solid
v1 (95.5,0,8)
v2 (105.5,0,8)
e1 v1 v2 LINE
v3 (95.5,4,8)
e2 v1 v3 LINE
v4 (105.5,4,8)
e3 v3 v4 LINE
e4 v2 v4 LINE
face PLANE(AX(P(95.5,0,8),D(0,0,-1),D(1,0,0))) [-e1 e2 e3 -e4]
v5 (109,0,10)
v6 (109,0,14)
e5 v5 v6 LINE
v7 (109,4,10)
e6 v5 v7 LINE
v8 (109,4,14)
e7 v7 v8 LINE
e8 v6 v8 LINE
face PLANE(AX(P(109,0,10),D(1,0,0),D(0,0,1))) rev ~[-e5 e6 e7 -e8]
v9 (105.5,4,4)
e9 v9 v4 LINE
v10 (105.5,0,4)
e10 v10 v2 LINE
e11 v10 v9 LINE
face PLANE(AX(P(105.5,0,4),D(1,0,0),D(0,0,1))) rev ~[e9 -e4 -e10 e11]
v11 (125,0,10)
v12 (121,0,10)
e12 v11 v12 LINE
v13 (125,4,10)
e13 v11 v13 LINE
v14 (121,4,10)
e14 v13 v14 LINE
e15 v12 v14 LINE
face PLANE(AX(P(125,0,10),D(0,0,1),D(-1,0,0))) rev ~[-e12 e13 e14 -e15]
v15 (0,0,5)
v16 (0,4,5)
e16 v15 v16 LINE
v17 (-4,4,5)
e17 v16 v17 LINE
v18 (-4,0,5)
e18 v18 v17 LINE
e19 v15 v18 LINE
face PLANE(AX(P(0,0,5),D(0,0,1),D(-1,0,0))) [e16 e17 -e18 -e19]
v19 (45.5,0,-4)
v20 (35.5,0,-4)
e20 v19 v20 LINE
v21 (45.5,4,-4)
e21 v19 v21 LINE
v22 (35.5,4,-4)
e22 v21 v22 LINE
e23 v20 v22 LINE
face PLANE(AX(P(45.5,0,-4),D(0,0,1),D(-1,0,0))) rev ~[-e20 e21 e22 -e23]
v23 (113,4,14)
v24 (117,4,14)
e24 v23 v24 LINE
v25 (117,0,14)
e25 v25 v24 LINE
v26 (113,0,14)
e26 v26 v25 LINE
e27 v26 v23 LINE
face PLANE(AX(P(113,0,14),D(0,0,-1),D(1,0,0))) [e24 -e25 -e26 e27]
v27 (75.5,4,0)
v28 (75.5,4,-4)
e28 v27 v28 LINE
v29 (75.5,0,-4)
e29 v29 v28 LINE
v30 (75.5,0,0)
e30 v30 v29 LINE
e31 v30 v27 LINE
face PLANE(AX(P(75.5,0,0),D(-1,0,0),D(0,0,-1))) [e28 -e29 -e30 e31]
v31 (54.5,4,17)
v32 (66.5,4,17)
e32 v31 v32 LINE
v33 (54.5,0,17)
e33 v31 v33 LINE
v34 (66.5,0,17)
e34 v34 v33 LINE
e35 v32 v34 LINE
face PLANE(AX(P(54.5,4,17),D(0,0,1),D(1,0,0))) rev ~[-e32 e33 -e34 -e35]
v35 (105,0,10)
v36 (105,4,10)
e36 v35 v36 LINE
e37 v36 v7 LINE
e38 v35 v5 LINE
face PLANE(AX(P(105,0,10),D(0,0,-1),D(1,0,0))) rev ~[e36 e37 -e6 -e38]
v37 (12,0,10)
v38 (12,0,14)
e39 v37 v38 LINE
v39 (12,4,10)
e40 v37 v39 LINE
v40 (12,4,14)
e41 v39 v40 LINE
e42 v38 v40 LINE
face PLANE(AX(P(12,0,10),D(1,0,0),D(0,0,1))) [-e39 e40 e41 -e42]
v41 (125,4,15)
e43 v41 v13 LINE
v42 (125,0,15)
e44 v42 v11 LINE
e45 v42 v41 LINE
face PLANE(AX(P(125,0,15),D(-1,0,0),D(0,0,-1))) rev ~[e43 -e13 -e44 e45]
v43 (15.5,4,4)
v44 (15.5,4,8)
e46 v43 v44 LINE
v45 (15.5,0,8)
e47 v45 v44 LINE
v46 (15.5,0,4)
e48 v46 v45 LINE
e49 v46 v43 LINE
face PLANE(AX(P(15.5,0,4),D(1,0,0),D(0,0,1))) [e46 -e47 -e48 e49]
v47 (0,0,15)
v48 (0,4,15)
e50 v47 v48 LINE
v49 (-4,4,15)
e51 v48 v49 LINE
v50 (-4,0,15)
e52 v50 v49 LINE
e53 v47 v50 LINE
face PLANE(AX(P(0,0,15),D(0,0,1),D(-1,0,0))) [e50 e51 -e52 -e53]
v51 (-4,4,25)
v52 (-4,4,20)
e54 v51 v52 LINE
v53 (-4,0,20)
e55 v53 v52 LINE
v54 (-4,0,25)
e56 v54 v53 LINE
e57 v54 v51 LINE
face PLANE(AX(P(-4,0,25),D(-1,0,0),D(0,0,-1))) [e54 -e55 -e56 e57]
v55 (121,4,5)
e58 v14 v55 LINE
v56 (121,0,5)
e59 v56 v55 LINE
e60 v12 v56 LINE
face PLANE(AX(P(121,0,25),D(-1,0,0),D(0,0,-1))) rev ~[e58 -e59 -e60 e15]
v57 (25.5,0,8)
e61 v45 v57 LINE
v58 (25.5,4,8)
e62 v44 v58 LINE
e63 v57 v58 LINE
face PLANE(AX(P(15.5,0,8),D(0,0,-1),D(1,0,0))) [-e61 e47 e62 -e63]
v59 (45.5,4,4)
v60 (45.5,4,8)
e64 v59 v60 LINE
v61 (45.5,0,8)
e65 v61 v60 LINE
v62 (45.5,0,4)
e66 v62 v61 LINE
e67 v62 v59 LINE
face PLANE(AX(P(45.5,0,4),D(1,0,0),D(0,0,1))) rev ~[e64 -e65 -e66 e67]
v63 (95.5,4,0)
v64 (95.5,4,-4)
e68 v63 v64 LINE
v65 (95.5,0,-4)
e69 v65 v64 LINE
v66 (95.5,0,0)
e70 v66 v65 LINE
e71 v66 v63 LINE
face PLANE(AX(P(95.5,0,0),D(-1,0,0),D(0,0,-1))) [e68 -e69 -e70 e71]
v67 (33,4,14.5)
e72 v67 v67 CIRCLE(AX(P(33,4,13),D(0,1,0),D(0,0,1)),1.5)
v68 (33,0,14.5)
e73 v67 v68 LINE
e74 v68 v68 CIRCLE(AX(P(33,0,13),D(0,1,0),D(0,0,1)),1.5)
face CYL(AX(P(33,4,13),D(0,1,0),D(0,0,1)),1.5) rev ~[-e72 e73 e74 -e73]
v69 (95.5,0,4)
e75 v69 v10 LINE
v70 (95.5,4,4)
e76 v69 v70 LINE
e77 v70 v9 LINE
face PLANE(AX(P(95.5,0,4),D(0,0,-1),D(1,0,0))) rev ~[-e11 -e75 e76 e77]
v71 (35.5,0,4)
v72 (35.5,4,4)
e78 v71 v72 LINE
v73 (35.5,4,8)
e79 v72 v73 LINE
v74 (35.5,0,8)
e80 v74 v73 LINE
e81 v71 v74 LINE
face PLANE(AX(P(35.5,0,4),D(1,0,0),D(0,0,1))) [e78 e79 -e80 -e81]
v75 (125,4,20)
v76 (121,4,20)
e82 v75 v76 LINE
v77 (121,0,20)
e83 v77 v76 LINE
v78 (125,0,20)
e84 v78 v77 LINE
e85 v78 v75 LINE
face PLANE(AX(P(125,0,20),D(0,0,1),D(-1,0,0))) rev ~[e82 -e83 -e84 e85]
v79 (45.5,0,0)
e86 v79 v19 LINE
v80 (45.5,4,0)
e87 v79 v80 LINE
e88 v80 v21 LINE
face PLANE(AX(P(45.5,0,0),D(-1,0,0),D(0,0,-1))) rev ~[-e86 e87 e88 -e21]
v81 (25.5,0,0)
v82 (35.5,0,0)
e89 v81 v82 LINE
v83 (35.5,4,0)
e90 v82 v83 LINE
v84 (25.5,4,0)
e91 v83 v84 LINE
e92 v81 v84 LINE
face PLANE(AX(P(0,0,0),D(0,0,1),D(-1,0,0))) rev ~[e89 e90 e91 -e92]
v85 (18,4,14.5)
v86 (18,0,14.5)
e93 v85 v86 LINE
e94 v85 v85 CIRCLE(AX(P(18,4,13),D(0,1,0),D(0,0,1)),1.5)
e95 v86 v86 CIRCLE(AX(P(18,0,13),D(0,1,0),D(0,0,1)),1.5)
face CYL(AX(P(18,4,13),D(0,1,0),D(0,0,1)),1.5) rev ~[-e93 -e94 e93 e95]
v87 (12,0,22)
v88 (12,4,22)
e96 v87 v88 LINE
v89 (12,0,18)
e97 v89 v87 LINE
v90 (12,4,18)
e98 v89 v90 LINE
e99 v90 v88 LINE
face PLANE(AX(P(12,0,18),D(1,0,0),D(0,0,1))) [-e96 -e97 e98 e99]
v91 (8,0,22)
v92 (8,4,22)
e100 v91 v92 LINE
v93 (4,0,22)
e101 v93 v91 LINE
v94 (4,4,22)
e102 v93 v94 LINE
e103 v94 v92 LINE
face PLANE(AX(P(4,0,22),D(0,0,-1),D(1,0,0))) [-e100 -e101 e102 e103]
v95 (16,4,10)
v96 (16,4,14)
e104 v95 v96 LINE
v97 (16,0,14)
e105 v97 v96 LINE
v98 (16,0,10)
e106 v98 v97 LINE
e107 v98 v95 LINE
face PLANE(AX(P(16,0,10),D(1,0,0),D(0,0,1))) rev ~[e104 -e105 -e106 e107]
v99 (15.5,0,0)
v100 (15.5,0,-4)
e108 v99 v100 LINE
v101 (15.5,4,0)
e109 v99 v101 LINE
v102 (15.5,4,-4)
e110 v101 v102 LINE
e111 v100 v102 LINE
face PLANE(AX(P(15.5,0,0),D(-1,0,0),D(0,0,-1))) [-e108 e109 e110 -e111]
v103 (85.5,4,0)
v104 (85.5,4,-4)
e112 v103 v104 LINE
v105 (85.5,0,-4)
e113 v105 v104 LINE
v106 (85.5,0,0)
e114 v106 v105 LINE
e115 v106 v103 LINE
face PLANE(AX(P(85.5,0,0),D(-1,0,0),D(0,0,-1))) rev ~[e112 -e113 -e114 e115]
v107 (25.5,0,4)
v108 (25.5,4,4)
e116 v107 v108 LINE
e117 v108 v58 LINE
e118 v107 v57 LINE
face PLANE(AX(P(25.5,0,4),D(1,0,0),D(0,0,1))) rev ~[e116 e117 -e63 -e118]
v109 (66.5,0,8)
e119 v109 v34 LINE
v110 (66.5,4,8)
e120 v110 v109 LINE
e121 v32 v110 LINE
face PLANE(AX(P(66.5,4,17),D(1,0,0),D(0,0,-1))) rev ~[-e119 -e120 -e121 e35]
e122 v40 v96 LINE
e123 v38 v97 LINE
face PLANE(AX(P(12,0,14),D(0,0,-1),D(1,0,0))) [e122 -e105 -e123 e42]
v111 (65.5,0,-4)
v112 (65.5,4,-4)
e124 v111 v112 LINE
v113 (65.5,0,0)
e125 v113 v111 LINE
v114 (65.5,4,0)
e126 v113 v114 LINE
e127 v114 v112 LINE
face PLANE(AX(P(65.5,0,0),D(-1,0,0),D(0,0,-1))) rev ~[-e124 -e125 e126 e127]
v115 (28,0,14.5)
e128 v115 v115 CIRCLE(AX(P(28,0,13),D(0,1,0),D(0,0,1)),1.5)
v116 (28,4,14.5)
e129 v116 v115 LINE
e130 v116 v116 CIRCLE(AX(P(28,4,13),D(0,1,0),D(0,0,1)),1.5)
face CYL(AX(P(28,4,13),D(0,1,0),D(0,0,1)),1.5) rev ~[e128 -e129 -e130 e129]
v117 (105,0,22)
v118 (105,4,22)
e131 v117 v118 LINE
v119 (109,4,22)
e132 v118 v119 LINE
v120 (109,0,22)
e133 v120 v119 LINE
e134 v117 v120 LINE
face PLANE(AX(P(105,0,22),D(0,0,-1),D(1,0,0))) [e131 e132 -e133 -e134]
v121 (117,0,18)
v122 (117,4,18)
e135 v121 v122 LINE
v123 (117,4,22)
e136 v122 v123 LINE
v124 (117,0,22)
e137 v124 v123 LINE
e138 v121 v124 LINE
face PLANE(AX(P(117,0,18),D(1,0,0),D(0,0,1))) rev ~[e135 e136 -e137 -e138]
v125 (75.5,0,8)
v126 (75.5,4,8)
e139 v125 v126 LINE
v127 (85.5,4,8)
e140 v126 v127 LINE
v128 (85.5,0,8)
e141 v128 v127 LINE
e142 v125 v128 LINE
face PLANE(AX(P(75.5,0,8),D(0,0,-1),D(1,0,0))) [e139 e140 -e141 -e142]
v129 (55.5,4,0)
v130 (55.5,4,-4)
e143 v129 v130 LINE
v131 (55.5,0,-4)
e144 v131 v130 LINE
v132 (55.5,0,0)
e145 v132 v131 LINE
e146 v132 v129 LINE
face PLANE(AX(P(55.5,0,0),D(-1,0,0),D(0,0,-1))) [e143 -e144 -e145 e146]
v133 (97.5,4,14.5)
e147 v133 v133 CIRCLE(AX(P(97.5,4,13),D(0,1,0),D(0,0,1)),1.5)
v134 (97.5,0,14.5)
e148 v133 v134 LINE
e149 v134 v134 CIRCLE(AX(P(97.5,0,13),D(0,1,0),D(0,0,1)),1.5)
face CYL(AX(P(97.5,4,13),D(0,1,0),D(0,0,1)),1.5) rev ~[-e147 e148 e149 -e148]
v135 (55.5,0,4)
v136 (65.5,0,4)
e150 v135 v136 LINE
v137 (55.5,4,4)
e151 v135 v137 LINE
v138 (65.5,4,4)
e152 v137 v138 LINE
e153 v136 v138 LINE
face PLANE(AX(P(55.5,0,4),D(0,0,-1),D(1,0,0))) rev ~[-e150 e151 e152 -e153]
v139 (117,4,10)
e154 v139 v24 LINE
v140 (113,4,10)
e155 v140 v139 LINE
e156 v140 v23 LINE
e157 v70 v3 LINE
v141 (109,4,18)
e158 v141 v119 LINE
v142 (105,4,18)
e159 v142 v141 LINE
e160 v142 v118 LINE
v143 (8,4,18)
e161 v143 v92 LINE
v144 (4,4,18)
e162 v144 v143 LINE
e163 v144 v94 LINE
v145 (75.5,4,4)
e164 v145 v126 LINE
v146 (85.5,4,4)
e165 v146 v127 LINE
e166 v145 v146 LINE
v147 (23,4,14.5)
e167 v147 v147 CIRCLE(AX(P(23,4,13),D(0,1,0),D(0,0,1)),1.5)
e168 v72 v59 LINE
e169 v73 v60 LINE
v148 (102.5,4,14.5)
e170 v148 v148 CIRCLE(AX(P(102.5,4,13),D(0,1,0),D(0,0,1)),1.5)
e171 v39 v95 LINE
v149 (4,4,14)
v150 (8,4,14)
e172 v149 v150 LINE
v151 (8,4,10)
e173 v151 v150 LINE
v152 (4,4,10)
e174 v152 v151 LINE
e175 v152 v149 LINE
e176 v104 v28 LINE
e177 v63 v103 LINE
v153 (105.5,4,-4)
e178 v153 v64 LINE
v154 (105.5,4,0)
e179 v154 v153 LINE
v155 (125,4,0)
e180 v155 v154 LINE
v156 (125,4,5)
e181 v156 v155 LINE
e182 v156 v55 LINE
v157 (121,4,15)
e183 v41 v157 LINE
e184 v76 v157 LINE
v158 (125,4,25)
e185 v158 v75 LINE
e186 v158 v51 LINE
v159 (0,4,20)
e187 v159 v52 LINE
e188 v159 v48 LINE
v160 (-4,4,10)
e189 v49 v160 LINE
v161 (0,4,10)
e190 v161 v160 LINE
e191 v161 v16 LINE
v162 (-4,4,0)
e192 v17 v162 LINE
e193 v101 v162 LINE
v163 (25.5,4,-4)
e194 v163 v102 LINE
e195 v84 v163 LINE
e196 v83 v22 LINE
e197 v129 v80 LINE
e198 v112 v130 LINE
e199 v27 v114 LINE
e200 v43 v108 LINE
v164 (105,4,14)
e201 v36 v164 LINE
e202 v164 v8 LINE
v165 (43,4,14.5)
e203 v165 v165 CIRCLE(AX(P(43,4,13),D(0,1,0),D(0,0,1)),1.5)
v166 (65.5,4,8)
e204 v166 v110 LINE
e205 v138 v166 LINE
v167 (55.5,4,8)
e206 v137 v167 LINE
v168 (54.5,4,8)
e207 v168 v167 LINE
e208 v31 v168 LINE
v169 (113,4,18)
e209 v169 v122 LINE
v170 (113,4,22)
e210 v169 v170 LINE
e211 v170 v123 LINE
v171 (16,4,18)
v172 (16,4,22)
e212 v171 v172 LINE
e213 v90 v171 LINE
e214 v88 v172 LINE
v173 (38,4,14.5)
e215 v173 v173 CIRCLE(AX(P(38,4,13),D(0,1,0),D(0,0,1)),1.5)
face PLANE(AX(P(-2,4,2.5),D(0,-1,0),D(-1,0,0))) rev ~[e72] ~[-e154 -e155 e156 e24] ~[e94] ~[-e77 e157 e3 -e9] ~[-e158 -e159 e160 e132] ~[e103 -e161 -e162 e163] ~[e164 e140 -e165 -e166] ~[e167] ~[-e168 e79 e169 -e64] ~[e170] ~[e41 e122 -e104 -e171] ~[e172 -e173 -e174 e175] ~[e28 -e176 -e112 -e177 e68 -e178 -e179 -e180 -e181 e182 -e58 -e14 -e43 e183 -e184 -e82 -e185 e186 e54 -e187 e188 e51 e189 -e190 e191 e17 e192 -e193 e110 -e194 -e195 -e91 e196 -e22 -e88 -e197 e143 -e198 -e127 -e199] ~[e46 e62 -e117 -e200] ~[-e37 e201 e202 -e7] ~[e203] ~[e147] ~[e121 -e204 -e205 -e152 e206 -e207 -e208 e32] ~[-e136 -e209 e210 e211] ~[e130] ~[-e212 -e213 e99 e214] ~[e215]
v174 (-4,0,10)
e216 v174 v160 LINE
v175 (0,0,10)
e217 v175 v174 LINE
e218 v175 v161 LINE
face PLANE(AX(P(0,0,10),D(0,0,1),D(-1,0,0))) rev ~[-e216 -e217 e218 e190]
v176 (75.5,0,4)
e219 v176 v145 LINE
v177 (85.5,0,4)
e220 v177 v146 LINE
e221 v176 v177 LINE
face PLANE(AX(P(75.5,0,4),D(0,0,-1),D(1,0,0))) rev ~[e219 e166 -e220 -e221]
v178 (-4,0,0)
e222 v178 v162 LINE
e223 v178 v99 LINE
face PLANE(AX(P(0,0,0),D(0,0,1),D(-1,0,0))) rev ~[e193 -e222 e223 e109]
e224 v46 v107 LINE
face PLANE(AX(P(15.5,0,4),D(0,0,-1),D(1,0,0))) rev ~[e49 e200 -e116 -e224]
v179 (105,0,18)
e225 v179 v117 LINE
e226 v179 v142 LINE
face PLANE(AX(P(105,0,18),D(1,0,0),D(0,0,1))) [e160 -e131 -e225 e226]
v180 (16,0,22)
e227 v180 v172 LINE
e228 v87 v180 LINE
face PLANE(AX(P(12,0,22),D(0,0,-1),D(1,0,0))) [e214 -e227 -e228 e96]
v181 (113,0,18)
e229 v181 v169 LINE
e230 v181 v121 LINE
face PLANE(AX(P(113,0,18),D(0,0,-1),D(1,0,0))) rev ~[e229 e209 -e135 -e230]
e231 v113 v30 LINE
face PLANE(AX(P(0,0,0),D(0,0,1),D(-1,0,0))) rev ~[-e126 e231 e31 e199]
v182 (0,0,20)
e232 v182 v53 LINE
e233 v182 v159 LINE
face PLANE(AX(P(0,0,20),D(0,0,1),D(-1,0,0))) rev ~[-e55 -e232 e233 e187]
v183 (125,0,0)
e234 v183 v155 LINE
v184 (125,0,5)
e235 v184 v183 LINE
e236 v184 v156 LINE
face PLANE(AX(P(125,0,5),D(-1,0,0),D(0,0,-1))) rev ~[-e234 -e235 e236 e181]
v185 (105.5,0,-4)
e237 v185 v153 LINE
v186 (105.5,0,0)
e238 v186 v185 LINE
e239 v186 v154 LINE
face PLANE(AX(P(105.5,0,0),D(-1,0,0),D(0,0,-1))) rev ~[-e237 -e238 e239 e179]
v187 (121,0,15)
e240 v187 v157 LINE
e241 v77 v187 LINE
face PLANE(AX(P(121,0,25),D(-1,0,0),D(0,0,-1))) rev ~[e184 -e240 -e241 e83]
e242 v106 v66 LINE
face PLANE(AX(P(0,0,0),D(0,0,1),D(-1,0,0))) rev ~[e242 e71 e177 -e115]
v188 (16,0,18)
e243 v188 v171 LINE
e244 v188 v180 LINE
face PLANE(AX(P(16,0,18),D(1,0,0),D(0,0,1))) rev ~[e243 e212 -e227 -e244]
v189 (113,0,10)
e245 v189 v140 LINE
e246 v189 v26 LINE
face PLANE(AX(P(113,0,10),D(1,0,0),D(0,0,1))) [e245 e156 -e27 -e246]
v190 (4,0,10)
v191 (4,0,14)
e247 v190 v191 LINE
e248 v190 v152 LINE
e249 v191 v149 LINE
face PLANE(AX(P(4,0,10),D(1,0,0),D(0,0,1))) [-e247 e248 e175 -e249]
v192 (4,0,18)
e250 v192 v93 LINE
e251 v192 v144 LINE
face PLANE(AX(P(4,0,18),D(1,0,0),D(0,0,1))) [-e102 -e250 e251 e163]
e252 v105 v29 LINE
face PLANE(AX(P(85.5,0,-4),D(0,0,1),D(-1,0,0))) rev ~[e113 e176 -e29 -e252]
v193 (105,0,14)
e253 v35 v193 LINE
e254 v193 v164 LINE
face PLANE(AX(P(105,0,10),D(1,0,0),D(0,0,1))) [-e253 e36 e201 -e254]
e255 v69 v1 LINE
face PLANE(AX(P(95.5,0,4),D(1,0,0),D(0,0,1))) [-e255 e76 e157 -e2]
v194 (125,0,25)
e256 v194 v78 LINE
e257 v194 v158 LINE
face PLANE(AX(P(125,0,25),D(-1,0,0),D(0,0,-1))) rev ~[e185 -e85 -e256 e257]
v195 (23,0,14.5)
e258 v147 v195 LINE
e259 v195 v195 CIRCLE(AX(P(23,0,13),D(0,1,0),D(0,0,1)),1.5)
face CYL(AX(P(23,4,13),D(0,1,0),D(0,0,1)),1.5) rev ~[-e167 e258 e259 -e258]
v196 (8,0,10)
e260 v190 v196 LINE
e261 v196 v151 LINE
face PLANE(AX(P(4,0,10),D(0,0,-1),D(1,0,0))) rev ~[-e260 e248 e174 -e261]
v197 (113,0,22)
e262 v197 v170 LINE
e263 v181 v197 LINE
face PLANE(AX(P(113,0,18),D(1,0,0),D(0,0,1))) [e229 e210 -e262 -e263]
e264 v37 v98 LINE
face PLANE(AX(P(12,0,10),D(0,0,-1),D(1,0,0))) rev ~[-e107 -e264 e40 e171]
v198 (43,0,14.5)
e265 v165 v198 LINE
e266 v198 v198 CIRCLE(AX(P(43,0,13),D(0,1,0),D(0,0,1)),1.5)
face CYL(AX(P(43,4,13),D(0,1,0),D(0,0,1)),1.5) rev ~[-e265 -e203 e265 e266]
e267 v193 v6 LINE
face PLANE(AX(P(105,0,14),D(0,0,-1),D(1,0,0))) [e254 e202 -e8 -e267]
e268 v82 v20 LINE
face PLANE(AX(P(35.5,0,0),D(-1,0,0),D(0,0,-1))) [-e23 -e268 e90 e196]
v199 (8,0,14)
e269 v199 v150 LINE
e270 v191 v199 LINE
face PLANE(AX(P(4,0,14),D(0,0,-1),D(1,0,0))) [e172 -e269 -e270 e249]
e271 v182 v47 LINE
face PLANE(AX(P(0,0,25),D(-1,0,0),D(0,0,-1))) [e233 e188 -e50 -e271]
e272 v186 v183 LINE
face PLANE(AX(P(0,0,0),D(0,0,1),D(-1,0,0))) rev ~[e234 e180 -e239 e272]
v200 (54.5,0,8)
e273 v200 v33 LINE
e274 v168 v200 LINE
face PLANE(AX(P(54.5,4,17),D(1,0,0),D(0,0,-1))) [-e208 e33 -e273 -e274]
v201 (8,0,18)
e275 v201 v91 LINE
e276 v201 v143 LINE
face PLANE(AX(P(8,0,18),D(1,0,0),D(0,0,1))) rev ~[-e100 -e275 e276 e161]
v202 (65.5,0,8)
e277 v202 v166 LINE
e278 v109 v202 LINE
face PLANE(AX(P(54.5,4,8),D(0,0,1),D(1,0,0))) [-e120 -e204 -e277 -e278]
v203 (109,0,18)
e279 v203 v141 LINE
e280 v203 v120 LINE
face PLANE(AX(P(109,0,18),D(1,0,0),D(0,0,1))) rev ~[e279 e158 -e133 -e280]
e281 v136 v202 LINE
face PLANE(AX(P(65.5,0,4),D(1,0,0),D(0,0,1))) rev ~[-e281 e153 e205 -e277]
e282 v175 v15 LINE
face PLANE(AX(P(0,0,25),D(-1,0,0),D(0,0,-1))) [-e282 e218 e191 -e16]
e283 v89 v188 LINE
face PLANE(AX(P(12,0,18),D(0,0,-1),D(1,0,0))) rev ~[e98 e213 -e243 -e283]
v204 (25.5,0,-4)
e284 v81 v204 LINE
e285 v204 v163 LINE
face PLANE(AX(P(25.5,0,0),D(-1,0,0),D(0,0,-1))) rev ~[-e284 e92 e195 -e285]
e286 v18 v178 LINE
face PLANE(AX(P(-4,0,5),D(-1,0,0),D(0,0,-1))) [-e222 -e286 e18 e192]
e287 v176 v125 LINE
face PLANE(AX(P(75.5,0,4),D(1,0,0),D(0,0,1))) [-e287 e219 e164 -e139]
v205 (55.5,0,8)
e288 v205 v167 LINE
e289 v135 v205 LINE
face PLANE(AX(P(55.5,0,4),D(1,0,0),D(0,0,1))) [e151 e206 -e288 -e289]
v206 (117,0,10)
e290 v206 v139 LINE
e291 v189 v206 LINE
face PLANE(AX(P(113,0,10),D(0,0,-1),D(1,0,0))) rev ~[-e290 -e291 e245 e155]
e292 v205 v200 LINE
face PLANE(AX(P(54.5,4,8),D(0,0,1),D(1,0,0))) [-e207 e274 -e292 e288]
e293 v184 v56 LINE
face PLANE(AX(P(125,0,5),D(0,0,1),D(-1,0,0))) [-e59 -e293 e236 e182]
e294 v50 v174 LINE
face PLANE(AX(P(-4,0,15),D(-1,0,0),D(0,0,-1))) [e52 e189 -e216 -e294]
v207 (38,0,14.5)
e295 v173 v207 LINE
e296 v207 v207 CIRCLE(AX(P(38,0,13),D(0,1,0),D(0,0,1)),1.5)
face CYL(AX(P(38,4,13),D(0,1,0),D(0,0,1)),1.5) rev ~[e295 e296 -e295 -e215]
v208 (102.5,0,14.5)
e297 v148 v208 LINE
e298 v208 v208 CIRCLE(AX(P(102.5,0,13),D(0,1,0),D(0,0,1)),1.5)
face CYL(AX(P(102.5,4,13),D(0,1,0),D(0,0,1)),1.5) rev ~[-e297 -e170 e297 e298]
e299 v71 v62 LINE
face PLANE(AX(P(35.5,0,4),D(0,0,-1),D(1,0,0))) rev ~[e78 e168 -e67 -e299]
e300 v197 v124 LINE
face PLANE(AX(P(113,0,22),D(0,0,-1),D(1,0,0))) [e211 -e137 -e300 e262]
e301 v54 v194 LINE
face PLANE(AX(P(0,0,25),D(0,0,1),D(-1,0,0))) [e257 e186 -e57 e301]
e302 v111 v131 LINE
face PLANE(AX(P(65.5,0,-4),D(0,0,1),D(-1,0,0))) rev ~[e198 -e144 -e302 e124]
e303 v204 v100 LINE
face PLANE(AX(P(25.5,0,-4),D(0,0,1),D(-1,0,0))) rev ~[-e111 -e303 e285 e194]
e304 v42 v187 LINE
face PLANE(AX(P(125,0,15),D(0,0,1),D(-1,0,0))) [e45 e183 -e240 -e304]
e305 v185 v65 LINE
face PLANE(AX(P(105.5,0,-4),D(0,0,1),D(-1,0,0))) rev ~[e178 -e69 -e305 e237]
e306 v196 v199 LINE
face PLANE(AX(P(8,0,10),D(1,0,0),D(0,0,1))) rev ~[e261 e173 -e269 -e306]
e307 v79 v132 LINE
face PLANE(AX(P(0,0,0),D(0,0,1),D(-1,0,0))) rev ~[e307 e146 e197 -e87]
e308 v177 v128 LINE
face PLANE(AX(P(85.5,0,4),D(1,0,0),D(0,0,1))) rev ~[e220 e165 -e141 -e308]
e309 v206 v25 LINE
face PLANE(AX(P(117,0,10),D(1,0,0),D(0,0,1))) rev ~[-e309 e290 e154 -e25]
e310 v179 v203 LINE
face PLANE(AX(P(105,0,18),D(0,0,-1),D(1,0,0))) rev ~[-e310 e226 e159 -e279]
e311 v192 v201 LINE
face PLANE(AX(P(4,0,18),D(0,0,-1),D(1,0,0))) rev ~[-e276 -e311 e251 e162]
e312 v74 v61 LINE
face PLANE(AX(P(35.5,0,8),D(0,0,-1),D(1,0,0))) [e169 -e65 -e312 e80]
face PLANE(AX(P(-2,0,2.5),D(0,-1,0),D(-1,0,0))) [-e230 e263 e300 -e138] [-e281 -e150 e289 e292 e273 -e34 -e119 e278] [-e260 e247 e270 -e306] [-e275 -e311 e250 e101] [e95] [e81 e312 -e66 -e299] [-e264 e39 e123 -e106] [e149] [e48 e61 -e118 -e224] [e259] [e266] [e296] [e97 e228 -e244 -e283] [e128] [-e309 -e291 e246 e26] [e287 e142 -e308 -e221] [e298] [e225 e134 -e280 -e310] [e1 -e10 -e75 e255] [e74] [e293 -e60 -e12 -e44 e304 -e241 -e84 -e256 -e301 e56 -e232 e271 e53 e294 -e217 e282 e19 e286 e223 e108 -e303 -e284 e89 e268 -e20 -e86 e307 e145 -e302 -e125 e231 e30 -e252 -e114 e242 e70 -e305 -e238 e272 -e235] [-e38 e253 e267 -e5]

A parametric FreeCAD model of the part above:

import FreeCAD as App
import Part
import Sketcher
from FreeCAD import Vector

doc = App.newDocument("Part")
body = doc.addObject("PartDesign::Body", "Body")

sketch1 = body.newObject("Sketcher::SketchObject", "Sketch")
sketch1.AttachmentSupport = (doc.getObject("XZ_Plane"), [""])
sketch1.MapMode = "FlatFace"
sketch1.addGeometry(Part.LineSegment(Vector(0, 0, 0), Vector(0, 25, 0)), False)
sketch1.addGeometry(Part.LineSegment(Vector(0, 25, 0), Vector(121, 25, 0)), False)
sketch1.addGeometry(Part.LineSegment(Vector(121, 25, 0), Vector(121, 0, 0)), False)
sketch1.addGeometry(Part.LineSegment(Vector(121, 0, 0), Vector(0, 0, 0)), False)
sketch1.addConstraint(Sketcher.Constraint("Coincident", 0, 2, 1, 1))
sketch1.addConstraint(Sketcher.Constraint("Coincident", 1, 2, 2, 1))
sketch1.addConstraint(Sketcher.Constraint("Coincident", 2, 2, 3, 1))
sketch1.addConstraint(Sketcher.Constraint("Coincident", 3, 2, 0, 1))
sketch1.addConstraint(Sketcher.Constraint("Vertical", 0))
sketch1.addConstraint(Sketcher.Constraint("Horizontal", 1))
sketch1.addConstraint(Sketcher.Constraint("Vertical", 2))
sketch1.addConstraint(Sketcher.Constraint("Horizontal", 3))
sketch1.addConstraint(Sketcher.Constraint("Coincident", 3, 2, -1, 1))
sketch1.addConstraint(Sketcher.Constraint("DistanceX", 1, 1, 1, 2, 121.0))
sketch1.addConstraint(Sketcher.Constraint("DistanceY", 0, 1, 0, 2, 25.0))
pad1 = body.newObject("PartDesign::Pad", "Pad")
pad1.Profile = sketch1
pad1.Length = 4
pad1.Reversed = True

sketch2 = body.newObject("Sketcher::SketchObject", "Sketch001")
sketch2.AttachmentSupport = (doc.getObject("XZ_Plane"), [""])
sketch2.MapMode = "FlatFace"
sketch2.addGeometry(Part.LineSegment(Vector(0, 20, 0), Vector(0, 25, 0)), False)
sketch2.addGeometry(Part.LineSegment(Vector(0, 25, 0), Vector(-4, 25, 0)), False)
sketch2.addGeometry(Part.LineSegment(Vector(-4, 25, 0), Vector(-4, 20, 0)), False)
sketch2.addGeometry(Part.LineSegment(Vector(-4, 20, 0), Vector(0, 20, 0)), False)
sketch2.addGeometry(Part.LineSegment(Vector(125, 20, 0), Vector(125, 25, 0)), False)
sketch2.addGeometry(Part.LineSegment(Vector(125, 25, 0), Vector(121, 25, 0)), False)
sketch2.addGeometry(Part.LineSegment(Vector(121, 25, 0), Vector(121, 20, 0)), False)
sketch2.addGeometry(Part.LineSegment(Vector(121, 20, 0), Vector(125, 20, 0)), False)
sketch2.addConstraint(Sketcher.Constraint("Coincident", 0, 2, 1, 1))
sketch2.addConstraint(Sketcher.Constraint("Coincident", 1, 2, 2, 1))
sketch2.addConstraint(Sketcher.Constraint("Coincident", 2, 2, 3, 1))
sketch2.addConstraint(Sketcher.Constraint("Coincident", 3, 2, 0, 1))
sketch2.addConstraint(Sketcher.Constraint("Coincident", 4, 2, 5, 1))
sketch2.addConstraint(Sketcher.Constraint("Coincident", 5, 2, 6, 1))
sketch2.addConstraint(Sketcher.Constraint("Coincident", 6, 2, 7, 1))
sketch2.addConstraint(Sketcher.Constraint("Coincident", 7, 2, 4, 1))
sketch2.addConstraint(Sketcher.Constraint("Vertical", 0))
sketch2.addConstraint(Sketcher.Constraint("Horizontal", 1))
sketch2.addConstraint(Sketcher.Constraint("Vertical", 2))
sketch2.addConstraint(Sketcher.Constraint("Horizontal", 3))
sketch2.addConstraint(Sketcher.Constraint("Vertical", 4))
sketch2.addConstraint(Sketcher.Constraint("Horizontal", 5))
sketch2.addConstraint(Sketcher.Constraint("Vertical", 6))
sketch2.addConstraint(Sketcher.Constraint("Horizontal", 7))
sketch2.addConstraint(Sketcher.Constraint("PointOnObject", 0, 2, -2))
sketch2.addConstraint(Sketcher.Constraint("Horizontal", 1, 2, 4, 2))
sketch2.addConstraint(Sketcher.Constraint("Horizontal", 3, 2, 6, 2))
sketch2.addConstraint(Sketcher.Constraint("Equal", 3, 5))
sketch2.addConstraint(Sketcher.Constraint("DistanceX", 1, 2, 1, 1, 4.0))
sketch2.addConstraint(Sketcher.Constraint("DistanceY", 0, 1, 0, 2, 5.0))
sketch2.addConstraint(Sketcher.Constraint("DistanceY", -1, 1, 0, 2, 25.0))
sketch2.addConstraint(Sketcher.Constraint("DistanceX", -1, 1, 4, 2, 125.0))
pad2 = body.newObject("PartDesign::Pad", "Pad001")
pad2.Profile = sketch2
pad2.Length = 4
pad2.Reversed = True
doc.recompute()

linearpattern = body.newObject("PartDesign::LinearPattern", "LinearPattern")
linearpattern.Originals = [pad2]
linearpattern.Direction = (doc.getObject("Z_Axis"), [""])
linearpattern.Mode = "offset"
linearpattern.Offset = 10
linearpattern.Occurrences = 3
linearpattern.Reversed = True
body.Tip = linearpattern

sketch3 = body.newObject("Sketcher::SketchObject", "Sketch002")
sketch3.AttachmentSupport = (doc.getObject("XZ_Plane"), [""])
sketch3.MapMode = "FlatFace"
sketch3.addGeometry(Part.LineSegment(Vector(65.5, -4, 0), Vector(65.5, 0, 0)), False)
sketch3.addGeometry(Part.LineSegment(Vector(65.5, 0, 0), Vector(55.5, 0, 0)), False)
sketch3.addGeometry(Part.LineSegment(Vector(55.5, 0, 0), Vector(55.5, -4, 0)), False)
sketch3.addGeometry(Part.LineSegment(Vector(55.5, -4, 0), Vector(65.5, -4, 0)), False)
sketch3.addConstraint(Sketcher.Constraint("Coincident", 0, 2, 1, 1))
sketch3.addConstraint(Sketcher.Constraint("Coincident", 1, 2, 2, 1))
sketch3.addConstraint(Sketcher.Constraint("Coincident", 2, 2, 3, 1))
sketch3.addConstraint(Sketcher.Constraint("Coincident", 3, 2, 0, 1))
sketch3.addConstraint(Sketcher.Constraint("Vertical", 0))
sketch3.addConstraint(Sketcher.Constraint("Horizontal", 1))
sketch3.addConstraint(Sketcher.Constraint("Vertical", 2))
sketch3.addConstraint(Sketcher.Constraint("Horizontal", 3))
sketch3.addConstraint(Sketcher.Constraint("PointOnObject", 0, 2, -1))
sketch3.addConstraint(Sketcher.Constraint("DistanceX", 1, 2, 1, 1, 10.0))
sketch3.addConstraint(Sketcher.Constraint("DistanceY", 0, 1, 0, 2, 4.0))
sketch3.addConstraint(Sketcher.Constraint("DistanceX", -1, 1, 0, 2, 65.5))
pad3 = body.newObject("PartDesign::Pad", "Pad002")
pad3.Profile = sketch3
pad3.Length = 4
pad3.Reversed = True
doc.recompute()

linearpattern2 = body.newObject("PartDesign::LinearPattern", "LinearPattern001")
linearpattern2.Originals = [pad3]
linearpattern2.Direction = (doc.getObject("X_Axis"), [""])
linearpattern2.Mode = "offset"
linearpattern2.Offset = 20
linearpattern2.Occurrences = 3
body.Tip = linearpattern2
doc.recompute()

linearpattern3 = body.newObject("PartDesign::LinearPattern", "LinearPattern002")
linearpattern3.Originals = [pad3]
linearpattern3.Direction = (doc.getObject("X_Axis"), [""])
linearpattern3.Mode = "offset"
linearpattern3.Offset = 20
linearpattern3.Occurrences = 3
linearpattern3.Reversed = True
body.Tip = linearpattern3

sketch4 = body.newObject("Sketcher::SketchObject", "Sketch003")
sketch4.AttachmentSupport = (doc.getObject("XZ_Plane"), [""])
sketch4.MapMode = "FlatFace"
sketch4.addGeometry(Part.LineSegment(Vector(15.5, 8, 0), Vector(15.5, 4, 0)), False)
sketch4.addGeometry(Part.LineSegment(Vector(15.5, 4, 0), Vector(25.5, 4, 0)), False)
sketch4.addGeometry(Part.LineSegment(Vector(25.5, 4, 0), Vector(25.5, 8, 0)), False)
sketch4.addGeometry(Part.LineSegment(Vector(25.5, 8, 0), Vector(15.5, 8, 0)), False)
sketch4.addGeometry(Part.LineSegment(Vector(35.5, 8, 0), Vector(35.5, 4, 0)), False)
sketch4.addGeometry(Part.LineSegment(Vector(35.5, 4, 0), Vector(45.5, 4, 0)), False)
sketch4.addGeometry(Part.LineSegment(Vector(45.5, 4, 0), Vector(45.5, 8, 0)), False)
sketch4.addGeometry(Part.LineSegment(Vector(45.5, 8, 0), Vector(35.5, 8, 0)), False)
sketch4.addGeometry(Part.LineSegment(Vector(55.5, 8, 0), Vector(55.5, 4, 0)), False)
sketch4.addGeometry(Part.LineSegment(Vector(55.5, 4, 0), Vector(65.5, 4, 0)), False)
sketch4.addGeometry(Part.LineSegment(Vector(65.5, 4, 0), Vector(65.5, 8, 0)), False)
sketch4.addGeometry(Part.LineSegment(Vector(65.5, 8, 0), Vector(55.5, 8, 0)), False)
sketch4.addGeometry(Part.LineSegment(Vector(75.5, 8, 0), Vector(75.5, 4, 0)), False)
sketch4.addGeometry(Part.LineSegment(Vector(75.5, 4, 0), Vector(85.5, 4, 0)), False)
sketch4.addGeometry(Part.LineSegment(Vector(85.5, 4, 0), Vector(85.5, 8, 0)), False)
sketch4.addGeometry(Part.LineSegment(Vector(85.5, 8, 0), Vector(75.5, 8, 0)), False)
sketch4.addGeometry(Part.LineSegment(Vector(95.5, 8, 0), Vector(95.5, 4, 0)), False)
sketch4.addGeometry(Part.LineSegment(Vector(95.5, 4, 0), Vector(105.5, 4, 0)), False)
sketch4.addGeometry(Part.LineSegment(Vector(105.5, 4, 0), Vector(105.5, 8, 0)), False)
sketch4.addGeometry(Part.LineSegment(Vector(105.5, 8, 0), Vector(95.5, 8, 0)), False)
sketch4.addConstraint(Sketcher.Constraint("Coincident", 0, 2, 1, 1))
sketch4.addConstraint(Sketcher.Constraint("Coincident", 1, 2, 2, 1))
sketch4.addConstraint(Sketcher.Constraint("Coincident", 2, 2, 3, 1))
sketch4.addConstraint(Sketcher.Constraint("Coincident", 3, 2, 0, 1))
sketch4.addConstraint(Sketcher.Constraint("Coincident", 4, 2, 5, 1))
sketch4.addConstraint(Sketcher.Constraint("Coincident", 5, 2, 6, 1))
sketch4.addConstraint(Sketcher.Constraint("Coincident", 6, 2, 7, 1))
sketch4.addConstraint(Sketcher.Constraint("Coincident", 7, 2, 4, 1))
sketch4.addConstraint(Sketcher.Constraint("Coincident", 8, 2, 9, 1))
sketch4.addConstraint(Sketcher.Constraint("Coincident", 9, 2, 10, 1))
sketch4.addConstraint(Sketcher.Constraint("Coincident", 10, 2, 11, 1))
sketch4.addConstraint(Sketcher.Constraint("Coincident", 11, 2, 8, 1))
sketch4.addConstraint(Sketcher.Constraint("Coincident", 12, 2, 13, 1))
sketch4.addConstraint(Sketcher.Constraint("Coincident", 13, 2, 14, 1))
sketch4.addConstraint(Sketcher.Constraint("Coincident", 14, 2, 15, 1))
sketch4.addConstraint(Sketcher.Constraint("Coincident", 15, 2, 12, 1))
sketch4.addConstraint(Sketcher.Constraint("Coincident", 16, 2, 17, 1))
sketch4.addConstraint(Sketcher.Constraint("Coincident", 17, 2, 18, 1))
sketch4.addConstraint(Sketcher.Constraint("Coincident", 18, 2, 19, 1))
sketch4.addConstraint(Sketcher.Constraint("Coincident", 19, 2, 16, 1))
sketch4.addConstraint(Sketcher.Constraint("Vertical", 0))
sketch4.addConstraint(Sketcher.Constraint("Horizontal", 1))
sketch4.addConstraint(Sketcher.Constraint("Vertical", 2))
sketch4.addConstraint(Sketcher.Constraint("Horizontal", 3))
sketch4.addConstraint(Sketcher.Constraint("Vertical", 4))
sketch4.addConstraint(Sketcher.Constraint("Horizontal", 5))
sketch4.addConstraint(Sketcher.Constraint("Vertical", 6))
sketch4.addConstraint(Sketcher.Constraint("Horizontal", 7))
sketch4.addConstraint(Sketcher.Constraint("Vertical", 8))
sketch4.addConstraint(Sketcher.Constraint("Horizontal", 9))
sketch4.addConstraint(Sketcher.Constraint("Vertical", 10))
sketch4.addConstraint(Sketcher.Constraint("Horizontal", 11))
sketch4.addConstraint(Sketcher.Constraint("Vertical", 12))
sketch4.addConstraint(Sketcher.Constraint("Horizontal", 13))
sketch4.addConstraint(Sketcher.Constraint("Vertical", 14))
sketch4.addConstraint(Sketcher.Constraint("Horizontal", 15))
sketch4.addConstraint(Sketcher.Constraint("Vertical", 16))
sketch4.addConstraint(Sketcher.Constraint("Horizontal", 17))
sketch4.addConstraint(Sketcher.Constraint("Vertical", 18))
sketch4.addConstraint(Sketcher.Constraint("Horizontal", 19))
sketch4.addConstraint(Sketcher.Constraint("Horizontal", 1, 2, 4, 2))
sketch4.addConstraint(Sketcher.Constraint("Horizontal", 3, 2, 6, 2))
sketch4.addConstraint(Sketcher.Constraint("Horizontal", 5, 2, 8, 2))
sketch4.addConstraint(Sketcher.Constraint("Horizontal", 7, 2, 10, 2))
sketch4.addConstraint(Sketcher.Constraint("Horizontal", 9, 2, 12, 2))
sketch4.addConstraint(Sketcher.Constraint("Horizontal", 11, 2, 14, 2))
sketch4.addConstraint(Sketcher.Constraint("Horizontal", 13, 2, 16, 2))
sketch4.addConstraint(Sketcher.Constraint("Horizontal", 15, 2, 18, 2))
sketch4.addConstraint(Sketcher.Constraint("Equal", 3, 5))
sketch4.addConstraint(Sketcher.Constraint("Equal", 7, 9))
sketch4.addConstraint(Sketcher.Constraint("Equal", 11, 13))
sketch4.addConstraint(Sketcher.Constraint("Equal", 15, 17))
sketch4.addConstraint(Sketcher.Constraint("DistanceX", 1, 1, 1, 2, 10.0))
sketch4.addConstraint(Sketcher.Constraint("DistanceY", 0, 2, 0, 1, 4.0))
sketch4.addConstraint(Sketcher.Constraint("DistanceY", -1, 1, 0, 2, 4.0))
sketch4.addConstraint(Sketcher.Constraint("DistanceX", 1, 2, 4, 2, 10.0))
sketch4.addConstraint(Sketcher.Constraint("DistanceX", 5, 2, 8, 2, 10.0))
sketch4.addConstraint(Sketcher.Constraint("DistanceX", 9, 2, 12, 2, 10.0))
sketch4.addConstraint(Sketcher.Constraint("DistanceX", 13, 2, 16, 2, 10.0))
sketch4.addConstraint(Sketcher.Constraint("DistanceX", -1, 1, 0, 2, 15.5))
pocket1 = body.newObject("PartDesign::Pocket", "Pocket")
pocket1.Profile = sketch4
pocket1.Type = "ThroughAll"

sketch5 = body.newObject("Sketcher::SketchObject", "Sketch004")
sketch5.AttachmentSupport = (doc.getObject("XZ_Plane"), [""])
sketch5.MapMode = "FlatFace"
sketch5.AttachmentOffset = App.Placement(Vector(0, 0, -4), App.Rotation())
sketch5.addGeometry(Part.Circle(Vector(97.5, 13, 0), Vector(0, 0, 1), 1.5), False)
sketch5.addGeometry(Part.Circle(Vector(102.5, 13, 0), Vector(0, 0, 1), 1.5), False)
sketch5.addGeometry(Part.Circle(Vector(43, 13, 0), Vector(0, 0, 1), 1.5), False)
sketch5.addGeometry(Part.Circle(Vector(38, 13, 0), Vector(0, 0, 1), 1.5), False)
sketch5.addGeometry(Part.Circle(Vector(33, 13, 0), Vector(0, 0, 1), 1.5), False)
sketch5.addGeometry(Part.Circle(Vector(28, 13, 0), Vector(0, 0, 1), 1.5), False)
sketch5.addGeometry(Part.Circle(Vector(23, 13, 0), Vector(0, 0, 1), 1.5), False)
sketch5.addGeometry(Part.Circle(Vector(18, 13, 0), Vector(0, 0, 1), 1.5), False)
sketch5.addGeometry(Part.LineSegment(Vector(54.5, 8, 0), Vector(54.5, 17, 0)), False)
sketch5.addGeometry(Part.LineSegment(Vector(54.5, 17, 0), Vector(66.5, 17, 0)), False)
sketch5.addGeometry(Part.LineSegment(Vector(66.5, 17, 0), Vector(66.5, 8, 0)), False)
sketch5.addGeometry(Part.LineSegment(Vector(66.5, 8, 0), Vector(54.5, 8, 0)), False)
sketch5.addConstraint(Sketcher.Constraint("Coincident", 8, 2, 9, 1))
sketch5.addConstraint(Sketcher.Constraint("Coincident", 9, 2, 10, 1))
sketch5.addConstraint(Sketcher.Constraint("Coincident", 10, 2, 11, 1))
sketch5.addConstraint(Sketcher.Constraint("Coincident", 11, 2, 8, 1))
sketch5.addConstraint(Sketcher.Constraint("Vertical", 8))
sketch5.addConstraint(Sketcher.Constraint("Horizontal", 9))
sketch5.addConstraint(Sketcher.Constraint("Vertical", 10))
sketch5.addConstraint(Sketcher.Constraint("Horizontal", 11))
sketch5.addConstraint(Sketcher.Constraint("Equal", 0, 1))
sketch5.addConstraint(Sketcher.Constraint("Equal", 1, 2))
sketch5.addConstraint(Sketcher.Constraint("Equal", 2, 3))
sketch5.addConstraint(Sketcher.Constraint("Equal", 3, 4))
sketch5.addConstraint(Sketcher.Constraint("Equal", 4, 5))
sketch5.addConstraint(Sketcher.Constraint("Equal", 5, 6))
sketch5.addConstraint(Sketcher.Constraint("Equal", 6, 7))
sketch5.addConstraint(Sketcher.Constraint("Horizontal", 0, 3, 1, 3))
sketch5.addConstraint(Sketcher.Constraint("Horizontal", 1, 3, 2, 3))
sketch5.addConstraint(Sketcher.Constraint("Horizontal", 2, 3, 3, 3))
sketch5.addConstraint(Sketcher.Constraint("Horizontal", 3, 3, 4, 3))
sketch5.addConstraint(Sketcher.Constraint("Horizontal", 4, 3, 5, 3))
sketch5.addConstraint(Sketcher.Constraint("Horizontal", 5, 3, 6, 3))
sketch5.addConstraint(Sketcher.Constraint("Horizontal", 6, 3, 7, 3))
sketch5.addConstraint(Sketcher.Constraint("Diameter", 0, 3.0))
sketch5.addConstraint(Sketcher.Constraint("DistanceX", 9, 1, 9, 2, 12.0))
sketch5.addConstraint(Sketcher.Constraint("DistanceY", 8, 1, 8, 2, 9.0))
sketch5.addConstraint(Sketcher.Constraint("DistanceY", -1, 1, 0, 3, 13.0))
sketch5.addConstraint(Sketcher.Constraint("DistanceX", -1, 1, 2, 3, 43.0))
sketch5.addConstraint(Sketcher.Constraint("DistanceX", -1, 1, 3, 3, 38.0))
sketch5.addConstraint(Sketcher.Constraint("DistanceX", -1, 1, 4, 3, 33.0))
sketch5.addConstraint(Sketcher.Constraint("DistanceX", -1, 1, 5, 3, 28.0))
sketch5.addConstraint(Sketcher.Constraint("DistanceX", -1, 1, 6, 3, 23.0))
sketch5.addConstraint(Sketcher.Constraint("DistanceX", -1, 1, 7, 3, 18.0))
sketch5.addConstraint(Sketcher.Constraint("DistanceY", -1, 1, 8, 2, 17.0))
sketch5.addConstraint(Sketcher.Constraint("DistanceX", 0, 3, 1, 3, 5.0))
sketch5.addConstraint(Sketcher.Constraint("DistanceX", 9, 2, 0, 3, 31.0))
sketch5.addConstraint(Sketcher.Constraint("DistanceX", -1, 1, 0, 3, 97.5))
pocket2 = body.newObject("PartDesign::Pocket", "Pocket001")
pocket2.Profile = sketch5
pocket2.Type = "ThroughAll"
pocket2.Reversed = True

sketch6 = body.newObject("Sketcher::SketchObject", "Sketch005")
sketch6.AttachmentSupport = (doc.getObject("XZ_Plane"), [""])
sketch6.MapMode = "FlatFace"
sketch6.addGeometry(Part.LineSegment(Vector(4, 22, 0), Vector(4, 18, 0)), False)
sketch6.addGeometry(Part.LineSegment(Vector(4, 18, 0), Vector(8, 18, 0)), False)
sketch6.addGeometry(Part.LineSegment(Vector(8, 18, 0), Vector(8, 22, 0)), False)
sketch6.addGeometry(Part.LineSegment(Vector(8, 22, 0), Vector(4, 22, 0)), False)
sketch6.addGeometry(Part.LineSegment(Vector(12, 22, 0), Vector(12, 18, 0)), False)
sketch6.addGeometry(Part.LineSegment(Vector(12, 18, 0), Vector(16, 18, 0)), False)
sketch6.addGeometry(Part.LineSegment(Vector(16, 18, 0), Vector(16, 22, 0)), False)
sketch6.addGeometry(Part.LineSegment(Vector(16, 22, 0), Vector(12, 22, 0)), False)
sketch6.addGeometry(Part.LineSegment(Vector(4, 14, 0), Vector(4, 10, 0)), False)
sketch6.addGeometry(Part.LineSegment(Vector(4, 10, 0), Vector(8, 10, 0)), False)
sketch6.addGeometry(Part.LineSegment(Vector(8, 10, 0), Vector(8, 14, 0)), False)
sketch6.addGeometry(Part.LineSegment(Vector(8, 14, 0), Vector(4, 14, 0)), False)
sketch6.addGeometry(Part.LineSegment(Vector(12, 14, 0), Vector(12, 10, 0)), False)
sketch6.addGeometry(Part.LineSegment(Vector(12, 10, 0), Vector(16, 10, 0)), False)
sketch6.addGeometry(Part.LineSegment(Vector(16, 10, 0), Vector(16, 14, 0)), False)
sketch6.addGeometry(Part.LineSegment(Vector(16, 14, 0), Vector(12, 14, 0)), False)
sketch6.addGeometry(Part.LineSegment(Vector(105, 22, 0), Vector(105, 18, 0)), False)
sketch6.addGeometry(Part.LineSegment(Vector(105, 18, 0), Vector(109, 18, 0)), False)
sketch6.addGeometry(Part.LineSegment(Vector(109, 18, 0), Vector(109, 22, 0)), False)
sketch6.addGeometry(Part.LineSegment(Vector(109, 22, 0), Vector(105, 22, 0)), False)
sketch6.addGeometry(Part.LineSegment(Vector(105, 14, 0), Vector(105, 10, 0)), False)
sketch6.addGeometry(Part.LineSegment(Vector(105, 10, 0), Vector(109, 10, 0)), False)
sketch6.addGeometry(Part.LineSegment(Vector(109, 10, 0), Vector(109, 14, 0)), False)
sketch6.addGeometry(Part.LineSegment(Vector(109, 14, 0), Vector(105, 14, 0)), False)
sketch6.addGeometry(Part.LineSegment(Vector(113, 22, 0), Vector(113, 18, 0)), False)
sketch6.addGeometry(Part.LineSegment(Vector(113, 18, 0), Vector(117, 18, 0)), False)
sketch6.addGeometry(Part.LineSegment(Vector(117, 18, 0), Vector(117, 22, 0)), False)
sketch6.addGeometry(Part.LineSegment(Vector(117, 22, 0), Vector(113, 22, 0)), False)
sketch6.addGeometry(Part.LineSegment(Vector(113, 14, 0), Vector(113, 10, 0)), False)
sketch6.addGeometry(Part.LineSegment(Vector(113, 10, 0), Vector(117, 10, 0)), False)
sketch6.addGeometry(Part.LineSegment(Vector(117, 10, 0), Vector(117, 14, 0)), False)
sketch6.addGeometry(Part.LineSegment(Vector(117, 14, 0), Vector(113, 14, 0)), False)
sketch6.addConstraint(Sketcher.Constraint("Coincident", 0, 2, 1, 1))
sketch6.addConstraint(Sketcher.Constraint("Coincident", 1, 2, 2, 1))
sketch6.addConstraint(Sketcher.Constraint("Coincident", 2, 2, 3, 1))
sketch6.addConstraint(Sketcher.Constraint("Coincident", 3, 2, 0, 1))
sketch6.addConstraint(Sketcher.Constraint("Coincident", 4, 2, 5, 1))
sketch6.addConstraint(Sketcher.Constraint("Coincident", 5, 2, 6, 1))
sketch6.addConstraint(Sketcher.Constraint("Coincident", 6, 2, 7, 1))
sketch6.addConstraint(Sketcher.Constraint("Coincident", 7, 2, 4, 1))
sketch6.addConstraint(Sketcher.Constraint("Coincident", 8, 2, 9, 1))
sketch6.addConstraint(Sketcher.Constraint("Coincident", 9, 2, 10, 1))
sketch6.addConstraint(Sketcher.Constraint("Coincident", 10, 2, 11, 1))
sketch6.addConstraint(Sketcher.Constraint("Coincident", 11, 2, 8, 1))
sketch6.addConstraint(Sketcher.Constraint("Coincident", 12, 2, 13, 1))
sketch6.addConstraint(Sketcher.Constraint("Coincident", 13, 2, 14, 1))
sketch6.addConstraint(Sketcher.Constraint("Coincident", 14, 2, 15, 1))
sketch6.addConstraint(Sketcher.Constraint("Coincident", 15, 2, 12, 1))
sketch6.addConstraint(Sketcher.Constraint("Coincident", 16, 2, 17, 1))
sketch6.addConstraint(Sketcher.Constraint("Coincident", 17, 2, 18, 1))
sketch6.addConstraint(Sketcher.Constraint("Coincident", 18, 2, 19, 1))
sketch6.addConstraint(Sketcher.Constraint("Coincident", 19, 2, 16, 1))
sketch6.addConstraint(Sketcher.Constraint("Coincident", 20, 2, 21, 1))
sketch6.addConstraint(Sketcher.Constraint("Coincident", 21, 2, 22, 1))
sketch6.addConstraint(Sketcher.Constraint("Coincident", 22, 2, 23, 1))
sketch6.addConstraint(Sketcher.Constraint("Coincident", 23, 2, 20, 1))
sketch6.addConstraint(Sketcher.Constraint("Coincident", 24, 2, 25, 1))
sketch6.addConstraint(Sketcher.Constraint("Coincident", 25, 2, 26, 1))
sketch6.addConstraint(Sketcher.Constraint("Coincident", 26, 2, 27, 1))
sketch6.addConstraint(Sketcher.Constraint("Coincident", 27, 2, 24, 1))
sketch6.addConstraint(Sketcher.Constraint("Coincident", 28, 2, 29, 1))
sketch6.addConstraint(Sketcher.Constraint("Coincident", 29, 2, 30, 1))
sketch6.addConstraint(Sketcher.Constraint("Coincident", 30, 2, 31, 1))
sketch6.addConstraint(Sketcher.Constraint("Coincident", 31, 2, 28, 1))
sketch6.addConstraint(Sketcher.Constraint("Vertical", 0))
sketch6.addConstraint(Sketcher.Constraint("Horizontal", 1))
sketch6.addConstraint(Sketcher.Constraint("Vertical", 2))
sketch6.addConstraint(Sketcher.Constraint("Horizontal", 3))
sketch6.addConstraint(Sketcher.Constraint("Vertical", 4))
sketch6.addConstraint(Sketcher.Constraint("Horizontal", 5))
sketch6.addConstraint(Sketcher.Constraint("Vertical", 6))
sketch6.addConstraint(Sketcher.Constraint("Horizontal", 7))
sketch6.addConstraint(Sketcher.Constraint("Vertical", 8))
sketch6.addConstraint(Sketcher.Constraint("Horizontal", 9))
sketch6.addConstraint(Sketcher.Constraint("Vertical", 10))
sketch6.addConstraint(Sketcher.Constraint("Horizontal", 11))
sketch6.addConstraint(Sketcher.Constraint("Vertical", 12))
sketch6.addConstraint(Sketcher.Constraint("Horizontal", 13))
sketch6.addConstraint(Sketcher.Constraint("Vertical", 14))
sketch6.addConstraint(Sketcher.Constraint("Horizontal", 15))
sketch6.addConstraint(Sketcher.Constraint("Vertical", 16))
sketch6.addConstraint(Sketcher.Constraint("Horizontal", 17))
sketch6.addConstraint(Sketcher.Constraint("Vertical", 18))
sketch6.addConstraint(Sketcher.Constraint("Horizontal", 19))
sketch6.addConstraint(Sketcher.Constraint("Vertical", 20))
sketch6.addConstraint(Sketcher.Constraint("Horizontal", 21))
sketch6.addConstraint(Sketcher.Constraint("Vertical", 22))
sketch6.addConstraint(Sketcher.Constraint("Horizontal", 23))
sketch6.addConstraint(Sketcher.Constraint("Vertical", 24))
sketch6.addConstraint(Sketcher.Constraint("Horizontal", 25))
sketch6.addConstraint(Sketcher.Constraint("Vertical", 26))
sketch6.addConstraint(Sketcher.Constraint("Horizontal", 27))
sketch6.addConstraint(Sketcher.Constraint("Vertical", 28))
sketch6.addConstraint(Sketcher.Constraint("Horizontal", 29))
sketch6.addConstraint(Sketcher.Constraint("Vertical", 30))
sketch6.addConstraint(Sketcher.Constraint("Horizontal", 31))
sketch6.addConstraint(Sketcher.Constraint("Horizontal", 1, 2, 4, 2))
sketch6.addConstraint(Sketcher.Constraint("Horizontal", 3, 2, 6, 2))
sketch6.addConstraint(Sketcher.Constraint("Horizontal", 9, 2, 12, 2))
sketch6.addConstraint(Sketcher.Constraint("Horizontal", 11, 2, 14, 2))
sketch6.addConstraint(Sketcher.Constraint("Horizontal", 5, 2, 16, 2))
sketch6.addConstraint(Sketcher.Constraint("Horizontal", 7, 2, 18, 2))
sketch6.addConstraint(Sketcher.Constraint("Horizontal", 13, 2, 20, 2))
sketch6.addConstraint(Sketcher.Constraint("Horizontal", 15, 2, 22, 2))
sketch6.addConstraint(Sketcher.Constraint("Horizontal", 17, 2, 24, 2))
sketch6.addConstraint(Sketcher.Constraint("Horizontal", 19, 2, 26, 2))
sketch6.addConstraint(Sketcher.Constraint("Horizontal", 21, 2, 28, 2))
sketch6.addConstraint(Sketcher.Constraint("Horizontal", 23, 2, 30, 2))
sketch6.addConstraint(Sketcher.Constraint("Vertical", 3, 2, 8, 2))
sketch6.addConstraint(Sketcher.Constraint("Vertical", 2, 2, 9, 2))
sketch6.addConstraint(Sketcher.Constraint("Vertical", 7, 2, 12, 2))
sketch6.addConstraint(Sketcher.Constraint("Vertical", 6, 2, 13, 2))
sketch6.addConstraint(Sketcher.Constraint("Vertical", 19, 2, 20, 2))
sketch6.addConstraint(Sketcher.Constraint("Vertical", 18, 2, 21, 2))
sketch6.addConstraint(Sketcher.Constraint("Vertical", 27, 2, 28, 2))
sketch6.addConstraint(Sketcher.Constraint("Vertical", 26, 2, 29, 2))
sketch6.addConstraint(Sketcher.Constraint("Equal", 3, 5))
sketch6.addConstraint(Sketcher.Constraint("Equal", 15, 17))
sketch6.addConstraint(Sketcher.Constraint("Equal", 23, 25))
sketch6.addConstraint(Sketcher.Constraint("Equal", 31, 0))
sketch6.addConstraint(Sketcher.Constraint("Equal", 6, 8))
sketch6.addConstraint(Sketcher.Constraint("DistanceX", 1, 1, 1, 2, 4.0))
sketch6.addConstraint(Sketcher.Constraint("DistanceX", -1, 1, 0, 2, 4.0))
sketch6.addConstraint(Sketcher.Constraint("DistanceY", -1, 1, 0, 2, 18.0))
sketch6.addConstraint(Sketcher.Constraint("DistanceX", -1, 1, 4, 2, 12.0))
sketch6.addConstraint(Sketcher.Constraint("DistanceY", -1, 1, 8, 2, 10.0))
sketch6.addConstraint(Sketcher.Constraint("DistanceX", -1, 1, 16, 2, 105.0))
sketch6.addConstraint(Sketcher.Constraint("DistanceX", -1, 1, 24, 2, 113.0))
pocket3 = body.newObject("PartDesign::Pocket", "Pocket002")
pocket3.Profile = sketch6
pocket3.Type = "ThroughAll"

doc.recompute()
